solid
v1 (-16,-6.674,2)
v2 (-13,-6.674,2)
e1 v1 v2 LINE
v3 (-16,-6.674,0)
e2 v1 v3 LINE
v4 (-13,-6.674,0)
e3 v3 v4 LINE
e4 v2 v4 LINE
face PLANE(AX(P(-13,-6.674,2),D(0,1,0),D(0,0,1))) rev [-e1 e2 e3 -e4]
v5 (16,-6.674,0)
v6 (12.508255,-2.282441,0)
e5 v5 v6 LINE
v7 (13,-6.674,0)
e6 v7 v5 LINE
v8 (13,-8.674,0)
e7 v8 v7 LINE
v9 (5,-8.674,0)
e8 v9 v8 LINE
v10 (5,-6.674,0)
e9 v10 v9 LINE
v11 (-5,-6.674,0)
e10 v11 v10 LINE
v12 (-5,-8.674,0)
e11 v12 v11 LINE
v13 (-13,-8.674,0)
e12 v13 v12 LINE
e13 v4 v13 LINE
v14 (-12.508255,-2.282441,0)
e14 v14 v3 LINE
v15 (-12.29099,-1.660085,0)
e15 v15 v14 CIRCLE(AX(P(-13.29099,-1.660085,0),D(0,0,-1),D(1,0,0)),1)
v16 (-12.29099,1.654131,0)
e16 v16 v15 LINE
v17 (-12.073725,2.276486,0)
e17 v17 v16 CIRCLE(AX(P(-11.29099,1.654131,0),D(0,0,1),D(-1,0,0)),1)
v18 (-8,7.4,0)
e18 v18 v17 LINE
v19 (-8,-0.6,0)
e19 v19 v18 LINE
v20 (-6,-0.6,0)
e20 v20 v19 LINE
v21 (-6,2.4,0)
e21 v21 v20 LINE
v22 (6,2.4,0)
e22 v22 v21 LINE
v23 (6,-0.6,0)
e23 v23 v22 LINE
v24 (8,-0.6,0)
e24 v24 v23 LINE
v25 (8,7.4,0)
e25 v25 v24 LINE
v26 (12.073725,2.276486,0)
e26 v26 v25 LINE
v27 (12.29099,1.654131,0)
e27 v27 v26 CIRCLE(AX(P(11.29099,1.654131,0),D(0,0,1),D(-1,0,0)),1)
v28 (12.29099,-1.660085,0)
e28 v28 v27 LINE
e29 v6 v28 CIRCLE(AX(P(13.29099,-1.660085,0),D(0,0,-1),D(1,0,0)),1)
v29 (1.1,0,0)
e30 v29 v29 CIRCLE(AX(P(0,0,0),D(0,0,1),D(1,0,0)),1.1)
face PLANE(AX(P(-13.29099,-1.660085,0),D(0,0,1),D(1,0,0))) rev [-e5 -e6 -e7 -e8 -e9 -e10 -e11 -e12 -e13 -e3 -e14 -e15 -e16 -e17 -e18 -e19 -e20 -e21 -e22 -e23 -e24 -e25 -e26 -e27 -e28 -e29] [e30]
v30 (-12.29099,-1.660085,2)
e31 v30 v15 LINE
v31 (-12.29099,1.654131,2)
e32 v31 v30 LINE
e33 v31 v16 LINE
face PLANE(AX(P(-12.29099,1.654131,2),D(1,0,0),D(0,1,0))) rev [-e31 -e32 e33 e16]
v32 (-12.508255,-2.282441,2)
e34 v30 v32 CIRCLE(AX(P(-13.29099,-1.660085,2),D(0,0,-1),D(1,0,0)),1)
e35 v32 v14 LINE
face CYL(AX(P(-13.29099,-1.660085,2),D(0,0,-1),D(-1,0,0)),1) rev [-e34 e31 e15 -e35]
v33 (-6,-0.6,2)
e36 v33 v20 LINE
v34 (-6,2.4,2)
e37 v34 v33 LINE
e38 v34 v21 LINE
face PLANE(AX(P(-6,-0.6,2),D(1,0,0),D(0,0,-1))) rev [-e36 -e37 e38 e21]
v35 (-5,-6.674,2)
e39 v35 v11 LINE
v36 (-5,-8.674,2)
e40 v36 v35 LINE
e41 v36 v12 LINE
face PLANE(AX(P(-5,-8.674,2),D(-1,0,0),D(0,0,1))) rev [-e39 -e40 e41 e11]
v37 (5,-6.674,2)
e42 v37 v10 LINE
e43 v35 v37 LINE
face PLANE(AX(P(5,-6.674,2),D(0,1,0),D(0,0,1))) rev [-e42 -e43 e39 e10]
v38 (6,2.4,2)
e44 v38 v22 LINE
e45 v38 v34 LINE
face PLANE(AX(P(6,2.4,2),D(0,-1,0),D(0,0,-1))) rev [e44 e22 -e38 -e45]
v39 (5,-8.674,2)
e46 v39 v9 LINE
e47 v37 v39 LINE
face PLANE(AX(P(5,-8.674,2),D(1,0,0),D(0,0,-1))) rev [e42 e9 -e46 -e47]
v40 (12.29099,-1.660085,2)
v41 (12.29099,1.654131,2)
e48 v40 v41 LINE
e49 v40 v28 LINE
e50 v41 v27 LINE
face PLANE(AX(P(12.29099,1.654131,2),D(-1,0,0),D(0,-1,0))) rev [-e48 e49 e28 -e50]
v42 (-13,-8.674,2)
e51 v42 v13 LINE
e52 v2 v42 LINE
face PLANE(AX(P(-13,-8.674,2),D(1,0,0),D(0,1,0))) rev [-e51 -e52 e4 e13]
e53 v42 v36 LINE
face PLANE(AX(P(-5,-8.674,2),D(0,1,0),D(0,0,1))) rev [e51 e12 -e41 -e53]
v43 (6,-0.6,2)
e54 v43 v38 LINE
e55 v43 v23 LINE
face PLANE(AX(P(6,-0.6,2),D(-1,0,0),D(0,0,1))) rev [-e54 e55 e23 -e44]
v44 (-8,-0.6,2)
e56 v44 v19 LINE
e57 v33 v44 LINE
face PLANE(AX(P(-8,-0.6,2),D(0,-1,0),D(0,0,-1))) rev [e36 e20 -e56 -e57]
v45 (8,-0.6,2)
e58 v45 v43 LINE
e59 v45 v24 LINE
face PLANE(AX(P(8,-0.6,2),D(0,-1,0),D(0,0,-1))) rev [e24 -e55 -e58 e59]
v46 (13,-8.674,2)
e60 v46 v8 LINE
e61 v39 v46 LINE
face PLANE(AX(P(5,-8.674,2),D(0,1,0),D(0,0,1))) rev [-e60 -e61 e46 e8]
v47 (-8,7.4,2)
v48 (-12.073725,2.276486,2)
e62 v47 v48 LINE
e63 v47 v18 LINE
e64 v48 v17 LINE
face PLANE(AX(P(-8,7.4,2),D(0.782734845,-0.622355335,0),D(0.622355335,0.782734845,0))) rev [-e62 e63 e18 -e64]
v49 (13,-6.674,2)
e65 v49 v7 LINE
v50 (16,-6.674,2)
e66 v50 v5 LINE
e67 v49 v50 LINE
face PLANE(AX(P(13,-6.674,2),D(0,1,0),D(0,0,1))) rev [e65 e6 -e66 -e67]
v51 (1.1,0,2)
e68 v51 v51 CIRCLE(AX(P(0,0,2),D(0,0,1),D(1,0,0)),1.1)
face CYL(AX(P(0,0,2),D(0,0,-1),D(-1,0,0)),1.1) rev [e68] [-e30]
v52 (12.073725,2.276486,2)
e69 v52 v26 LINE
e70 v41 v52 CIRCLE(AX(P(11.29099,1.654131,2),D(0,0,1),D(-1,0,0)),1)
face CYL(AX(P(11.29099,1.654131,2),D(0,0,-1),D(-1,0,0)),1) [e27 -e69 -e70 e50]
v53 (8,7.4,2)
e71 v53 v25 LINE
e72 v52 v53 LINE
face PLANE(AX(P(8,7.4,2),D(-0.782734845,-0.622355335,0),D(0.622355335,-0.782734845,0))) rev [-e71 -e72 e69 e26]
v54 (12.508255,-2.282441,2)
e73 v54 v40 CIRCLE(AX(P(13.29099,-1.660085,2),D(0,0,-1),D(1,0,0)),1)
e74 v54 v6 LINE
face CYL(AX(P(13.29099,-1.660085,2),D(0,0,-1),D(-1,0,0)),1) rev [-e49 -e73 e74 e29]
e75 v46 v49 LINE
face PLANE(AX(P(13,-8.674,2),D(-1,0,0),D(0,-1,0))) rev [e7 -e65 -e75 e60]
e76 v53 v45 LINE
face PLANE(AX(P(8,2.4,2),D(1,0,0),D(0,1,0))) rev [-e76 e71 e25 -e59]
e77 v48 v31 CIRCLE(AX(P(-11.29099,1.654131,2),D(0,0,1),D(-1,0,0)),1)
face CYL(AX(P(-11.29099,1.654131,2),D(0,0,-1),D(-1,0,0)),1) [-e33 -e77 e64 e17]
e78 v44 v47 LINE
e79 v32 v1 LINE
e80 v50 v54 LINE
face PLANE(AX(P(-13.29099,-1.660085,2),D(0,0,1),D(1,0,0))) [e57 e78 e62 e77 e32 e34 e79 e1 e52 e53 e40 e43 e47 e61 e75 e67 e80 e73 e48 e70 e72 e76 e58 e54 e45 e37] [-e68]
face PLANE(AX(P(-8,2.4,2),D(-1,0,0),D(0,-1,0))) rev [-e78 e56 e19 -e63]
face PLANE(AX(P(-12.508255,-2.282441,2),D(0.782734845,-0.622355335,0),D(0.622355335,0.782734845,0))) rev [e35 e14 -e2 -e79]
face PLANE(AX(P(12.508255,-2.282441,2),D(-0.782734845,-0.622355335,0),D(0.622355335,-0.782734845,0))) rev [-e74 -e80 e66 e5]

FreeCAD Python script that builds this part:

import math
import FreeCAD as App
import Part
import Sketcher
from FreeCAD import Vector

doc = App.newDocument("Part")
body = doc.addObject("PartDesign::Body", "Body")

# Sketch on XY plane
sketch1 = body.newObject("Sketcher::SketchObject", "Sketch")
sketch1.AttachmentSupport = (doc.getObject("XY_Plane"), [""])
sketch1.MapMode = "FlatFace"
sketch1.addGeometry([
    Part.LineSegment(Vector(-5, -6.7, 0), Vector(5, -6.7, 0)),  # 0
    Part.LineSegment(Vector(5, -6.7, 0), Vector(5, -8.7, 0)),  # 1
    Part.LineSegment(Vector(5, -8.7, 0), Vector(13, -8.7, 0)),  # 2
    Part.LineSegment(Vector(13, -8.7, 0), Vector(13, -6.7, 0)),  # 3
    Part.LineSegment(Vector(13, -6.7, 0), Vector(16, -6.7, 0)),  # 4
    Part.LineSegment(Vector(16, -6.7, 0), Vector(12.5, -2.3, 0)),  # 5
    Part.ArcOfCircle(Part.Circle(Vector(13.3, -1.7, 0), Vector(0, 0, 1), 1), math.radians(-180), math.radians(-142)),  # 6
    Part.LineSegment(Vector(12.3, -1.7, 0), Vector(12.3, 1.7, 0)),  # 7
    Part.ArcOfCircle(Part.Circle(Vector(11.3, 1.7, 0), Vector(0, 0, 1), 1), math.radians(0), math.radians(38)),  # 8
    Part.LineSegment(Vector(12.1, 2.3, 0), Vector(8, 7.4, 0)),  # 9
    Part.LineSegment(Vector(8, 7.4, 0), Vector(8, -0.6, 0)),  # 10
    Part.LineSegment(Vector(8, -0.6, 0), Vector(6, -0.6, 0)),  # 11
    Part.LineSegment(Vector(6, -0.6, 0), Vector(6, 2.4, 0)),  # 12
    Part.LineSegment(Vector(6, 2.4, 0), Vector(-6, 2.4, 0)),  # 13
    Part.LineSegment(Vector(-6, 2.4, 0), Vector(-6, -0.6, 0)),  # 14
    Part.LineSegment(Vector(-6, -0.6, 0), Vector(-8, -0.6, 0)),  # 15
    Part.LineSegment(Vector(-8, -0.6, 0), Vector(-8, 7.4, 0)),  # 16
    Part.LineSegment(Vector(-8, 7.4, 0), Vector(-12.1, 2.3, 0)),  # 17
    Part.ArcOfCircle(Part.Circle(Vector(-11.3, 1.7, 0), Vector(0, 0, 1), 1), math.radians(142), math.radians(180)),  # 18
    Part.LineSegment(Vector(-12.3, 1.7, 0), Vector(-12.3, -1.7, 0)),  # 19
    Part.ArcOfCircle(Part.Circle(Vector(-13.3, -1.7, 0), Vector(0, 0, 1), 1), math.radians(-38), math.radians(0)),  # 20
    Part.LineSegment(Vector(-12.5, -2.3, 0), Vector(-16, -6.7, 0)),  # 21
    Part.LineSegment(Vector(-16, -6.7, 0), Vector(-13, -6.7, 0)),  # 22
    Part.LineSegment(Vector(-13, -6.7, 0), Vector(-13, -8.7, 0)),  # 23
    Part.LineSegment(Vector(-13, -8.7, 0), Vector(-5, -8.7, 0)),  # 24
    Part.LineSegment(Vector(-5, -8.7, 0), Vector(-5, -6.7, 0)),  # 25
    Part.Circle(Vector(0, 0, 0), Vector(0, 0, 1), 1.1),  # 26
], False)
sketch1.addConstraint([
    Sketcher.Constraint("Coincident", 0, 2, 1, 1),
    Sketcher.Constraint("Coincident", 1, 2, 2, 1),
    Sketcher.Constraint("Coincident", 2, 2, 3, 1),
    Sketcher.Constraint("Coincident", 3, 2, 4, 1),
    Sketcher.Constraint("Coincident", 4, 2, 5, 1),
    Sketcher.Constraint("Tangent", 5, 2, 6, 2),
    Sketcher.Constraint("Tangent", 6, 1, 7, 1),
    Sketcher.Constraint("Tangent", 7, 2, 8, 1),
    Sketcher.Constraint("Tangent", 8, 2, 9, 1),
    Sketcher.Constraint("Coincident", 9, 2, 10, 1),
    Sketcher.Constraint("Coincident", 10, 2, 11, 1),
    Sketcher.Constraint("Coincident", 11, 2, 12, 1),
    Sketcher.Constraint("Coincident", 12, 2, 13, 1),
    Sketcher.Constraint("Coincident", 13, 2, 14, 1),
    Sketcher.Constraint("Coincident", 14, 2, 15, 1),
    Sketcher.Constraint("Coincident", 15, 2, 16, 1),
    Sketcher.Constraint("Coincident", 16, 2, 17, 1),
    Sketcher.Constraint("Tangent", 17, 2, 18, 1),
    Sketcher.Constraint("Tangent", 18, 2, 19, 1),
    Sketcher.Constraint("Tangent", 19, 2, 20, 2),
    Sketcher.Constraint("Tangent", 20, 1, 21, 1),
    Sketcher.Constraint("Coincident", 21, 2, 22, 1),
    Sketcher.Constraint("Coincident", 22, 2, 23, 1),
    Sketcher.Constraint("Coincident", 23, 2, 24, 1),
    Sketcher.Constraint("Coincident", 24, 2, 25, 1),
    Sketcher.Constraint("Coincident", 25, 2, 0, 1),
    Sketcher.Constraint("Horizontal", 0),
    Sketcher.Constraint("Vertical", 1),
    Sketcher.Constraint("Horizontal", 2),
    Sketcher.Constraint("Vertical", 3),
    Sketcher.Constraint("Horizontal", 4),
    Sketcher.Constraint("Vertical", 7),
    Sketcher.Constraint("Vertical", 10),
    Sketcher.Constraint("Horizontal", 11),
    Sketcher.Constraint("Vertical", 12),
    Sketcher.Constraint("Horizontal", 13),
    Sketcher.Constraint("Vertical", 14),
    Sketcher.Constraint("Horizontal", 15),
    Sketcher.Constraint("Vertical", 16),
    Sketcher.Constraint("Vertical", 19),
    Sketcher.Constraint("Horizontal", 22),
    Sketcher.Constraint("Vertical", 23),
    Sketcher.Constraint("Horizontal", 24),
    Sketcher.Constraint("Vertical", 25),
    Sketcher.Constraint("Coincident", 26, 3, -1, 1),
    Sketcher.Constraint("Equal", 6, 8),
    Sketcher.Constraint("Equal", 8, 18),
    Sketcher.Constraint("Equal", 18, 20),
    Sketcher.Constraint("Symmetric", 8, 3, 18, 3, -2),
    Sketcher.Constraint("Symmetric", 11, 2, 14, 2, -2),
    Sketcher.Constraint("Symmetric", 9, 2, 16, 2, -2),
    Sketcher.Constraint("Symmetric", 5, 2, 20, 1, -2),
    Sketcher.Constraint("Symmetric", 3, 2, 22, 2, -2),
    Sketcher.Constraint("Symmetric", 1, 2, 24, 2, -2),
    Sketcher.Constraint("Parallel", 5, 9),
    Sketcher.Constraint("Horizontal", 0, 2, 3, 2),
    Sketcher.Constraint("Equal", 15, 1),
    Sketcher.Constraint("Equal", 24, 10),
    Sketcher.Constraint("Equal", 22, 12),
    Sketcher.Constraint("Radius", 6, 1.0),
    Sketcher.Constraint("Diameter", 26, 2.2),
    Sketcher.Constraint("DistanceX", 0, 1, 0, 2, 10.0),
    Sketcher.Constraint("DistanceX", 2, 1, 2, 2, 8.0),
    Sketcher.Constraint("DistanceX", 4, 1, 4, 2, 3.0),
    Sketcher.Constraint("DistanceX", 11, 2, 11, 1, 2.0),
    Sketcher.Constraint("DistanceX", 13, 2, 13, 1, 12.0),
    Sketcher.Constraint("DistanceY", -1, 1, 9, 2, 7.4),
    Sketcher.Constraint("DistanceY", 0, 2, -1, 1, 6.674),
    Sketcher.Constraint("DistanceY", 7, 1, 7, 2, 3.314216),
    Sketcher.Constraint("DistanceX", -1, 1, 6, 3, 13.29099),
])
pad1 = body.newObject("PartDesign::Pad", "Pad")
pad1.Profile = sketch1
pad1.Length = 2

doc.recompute()
